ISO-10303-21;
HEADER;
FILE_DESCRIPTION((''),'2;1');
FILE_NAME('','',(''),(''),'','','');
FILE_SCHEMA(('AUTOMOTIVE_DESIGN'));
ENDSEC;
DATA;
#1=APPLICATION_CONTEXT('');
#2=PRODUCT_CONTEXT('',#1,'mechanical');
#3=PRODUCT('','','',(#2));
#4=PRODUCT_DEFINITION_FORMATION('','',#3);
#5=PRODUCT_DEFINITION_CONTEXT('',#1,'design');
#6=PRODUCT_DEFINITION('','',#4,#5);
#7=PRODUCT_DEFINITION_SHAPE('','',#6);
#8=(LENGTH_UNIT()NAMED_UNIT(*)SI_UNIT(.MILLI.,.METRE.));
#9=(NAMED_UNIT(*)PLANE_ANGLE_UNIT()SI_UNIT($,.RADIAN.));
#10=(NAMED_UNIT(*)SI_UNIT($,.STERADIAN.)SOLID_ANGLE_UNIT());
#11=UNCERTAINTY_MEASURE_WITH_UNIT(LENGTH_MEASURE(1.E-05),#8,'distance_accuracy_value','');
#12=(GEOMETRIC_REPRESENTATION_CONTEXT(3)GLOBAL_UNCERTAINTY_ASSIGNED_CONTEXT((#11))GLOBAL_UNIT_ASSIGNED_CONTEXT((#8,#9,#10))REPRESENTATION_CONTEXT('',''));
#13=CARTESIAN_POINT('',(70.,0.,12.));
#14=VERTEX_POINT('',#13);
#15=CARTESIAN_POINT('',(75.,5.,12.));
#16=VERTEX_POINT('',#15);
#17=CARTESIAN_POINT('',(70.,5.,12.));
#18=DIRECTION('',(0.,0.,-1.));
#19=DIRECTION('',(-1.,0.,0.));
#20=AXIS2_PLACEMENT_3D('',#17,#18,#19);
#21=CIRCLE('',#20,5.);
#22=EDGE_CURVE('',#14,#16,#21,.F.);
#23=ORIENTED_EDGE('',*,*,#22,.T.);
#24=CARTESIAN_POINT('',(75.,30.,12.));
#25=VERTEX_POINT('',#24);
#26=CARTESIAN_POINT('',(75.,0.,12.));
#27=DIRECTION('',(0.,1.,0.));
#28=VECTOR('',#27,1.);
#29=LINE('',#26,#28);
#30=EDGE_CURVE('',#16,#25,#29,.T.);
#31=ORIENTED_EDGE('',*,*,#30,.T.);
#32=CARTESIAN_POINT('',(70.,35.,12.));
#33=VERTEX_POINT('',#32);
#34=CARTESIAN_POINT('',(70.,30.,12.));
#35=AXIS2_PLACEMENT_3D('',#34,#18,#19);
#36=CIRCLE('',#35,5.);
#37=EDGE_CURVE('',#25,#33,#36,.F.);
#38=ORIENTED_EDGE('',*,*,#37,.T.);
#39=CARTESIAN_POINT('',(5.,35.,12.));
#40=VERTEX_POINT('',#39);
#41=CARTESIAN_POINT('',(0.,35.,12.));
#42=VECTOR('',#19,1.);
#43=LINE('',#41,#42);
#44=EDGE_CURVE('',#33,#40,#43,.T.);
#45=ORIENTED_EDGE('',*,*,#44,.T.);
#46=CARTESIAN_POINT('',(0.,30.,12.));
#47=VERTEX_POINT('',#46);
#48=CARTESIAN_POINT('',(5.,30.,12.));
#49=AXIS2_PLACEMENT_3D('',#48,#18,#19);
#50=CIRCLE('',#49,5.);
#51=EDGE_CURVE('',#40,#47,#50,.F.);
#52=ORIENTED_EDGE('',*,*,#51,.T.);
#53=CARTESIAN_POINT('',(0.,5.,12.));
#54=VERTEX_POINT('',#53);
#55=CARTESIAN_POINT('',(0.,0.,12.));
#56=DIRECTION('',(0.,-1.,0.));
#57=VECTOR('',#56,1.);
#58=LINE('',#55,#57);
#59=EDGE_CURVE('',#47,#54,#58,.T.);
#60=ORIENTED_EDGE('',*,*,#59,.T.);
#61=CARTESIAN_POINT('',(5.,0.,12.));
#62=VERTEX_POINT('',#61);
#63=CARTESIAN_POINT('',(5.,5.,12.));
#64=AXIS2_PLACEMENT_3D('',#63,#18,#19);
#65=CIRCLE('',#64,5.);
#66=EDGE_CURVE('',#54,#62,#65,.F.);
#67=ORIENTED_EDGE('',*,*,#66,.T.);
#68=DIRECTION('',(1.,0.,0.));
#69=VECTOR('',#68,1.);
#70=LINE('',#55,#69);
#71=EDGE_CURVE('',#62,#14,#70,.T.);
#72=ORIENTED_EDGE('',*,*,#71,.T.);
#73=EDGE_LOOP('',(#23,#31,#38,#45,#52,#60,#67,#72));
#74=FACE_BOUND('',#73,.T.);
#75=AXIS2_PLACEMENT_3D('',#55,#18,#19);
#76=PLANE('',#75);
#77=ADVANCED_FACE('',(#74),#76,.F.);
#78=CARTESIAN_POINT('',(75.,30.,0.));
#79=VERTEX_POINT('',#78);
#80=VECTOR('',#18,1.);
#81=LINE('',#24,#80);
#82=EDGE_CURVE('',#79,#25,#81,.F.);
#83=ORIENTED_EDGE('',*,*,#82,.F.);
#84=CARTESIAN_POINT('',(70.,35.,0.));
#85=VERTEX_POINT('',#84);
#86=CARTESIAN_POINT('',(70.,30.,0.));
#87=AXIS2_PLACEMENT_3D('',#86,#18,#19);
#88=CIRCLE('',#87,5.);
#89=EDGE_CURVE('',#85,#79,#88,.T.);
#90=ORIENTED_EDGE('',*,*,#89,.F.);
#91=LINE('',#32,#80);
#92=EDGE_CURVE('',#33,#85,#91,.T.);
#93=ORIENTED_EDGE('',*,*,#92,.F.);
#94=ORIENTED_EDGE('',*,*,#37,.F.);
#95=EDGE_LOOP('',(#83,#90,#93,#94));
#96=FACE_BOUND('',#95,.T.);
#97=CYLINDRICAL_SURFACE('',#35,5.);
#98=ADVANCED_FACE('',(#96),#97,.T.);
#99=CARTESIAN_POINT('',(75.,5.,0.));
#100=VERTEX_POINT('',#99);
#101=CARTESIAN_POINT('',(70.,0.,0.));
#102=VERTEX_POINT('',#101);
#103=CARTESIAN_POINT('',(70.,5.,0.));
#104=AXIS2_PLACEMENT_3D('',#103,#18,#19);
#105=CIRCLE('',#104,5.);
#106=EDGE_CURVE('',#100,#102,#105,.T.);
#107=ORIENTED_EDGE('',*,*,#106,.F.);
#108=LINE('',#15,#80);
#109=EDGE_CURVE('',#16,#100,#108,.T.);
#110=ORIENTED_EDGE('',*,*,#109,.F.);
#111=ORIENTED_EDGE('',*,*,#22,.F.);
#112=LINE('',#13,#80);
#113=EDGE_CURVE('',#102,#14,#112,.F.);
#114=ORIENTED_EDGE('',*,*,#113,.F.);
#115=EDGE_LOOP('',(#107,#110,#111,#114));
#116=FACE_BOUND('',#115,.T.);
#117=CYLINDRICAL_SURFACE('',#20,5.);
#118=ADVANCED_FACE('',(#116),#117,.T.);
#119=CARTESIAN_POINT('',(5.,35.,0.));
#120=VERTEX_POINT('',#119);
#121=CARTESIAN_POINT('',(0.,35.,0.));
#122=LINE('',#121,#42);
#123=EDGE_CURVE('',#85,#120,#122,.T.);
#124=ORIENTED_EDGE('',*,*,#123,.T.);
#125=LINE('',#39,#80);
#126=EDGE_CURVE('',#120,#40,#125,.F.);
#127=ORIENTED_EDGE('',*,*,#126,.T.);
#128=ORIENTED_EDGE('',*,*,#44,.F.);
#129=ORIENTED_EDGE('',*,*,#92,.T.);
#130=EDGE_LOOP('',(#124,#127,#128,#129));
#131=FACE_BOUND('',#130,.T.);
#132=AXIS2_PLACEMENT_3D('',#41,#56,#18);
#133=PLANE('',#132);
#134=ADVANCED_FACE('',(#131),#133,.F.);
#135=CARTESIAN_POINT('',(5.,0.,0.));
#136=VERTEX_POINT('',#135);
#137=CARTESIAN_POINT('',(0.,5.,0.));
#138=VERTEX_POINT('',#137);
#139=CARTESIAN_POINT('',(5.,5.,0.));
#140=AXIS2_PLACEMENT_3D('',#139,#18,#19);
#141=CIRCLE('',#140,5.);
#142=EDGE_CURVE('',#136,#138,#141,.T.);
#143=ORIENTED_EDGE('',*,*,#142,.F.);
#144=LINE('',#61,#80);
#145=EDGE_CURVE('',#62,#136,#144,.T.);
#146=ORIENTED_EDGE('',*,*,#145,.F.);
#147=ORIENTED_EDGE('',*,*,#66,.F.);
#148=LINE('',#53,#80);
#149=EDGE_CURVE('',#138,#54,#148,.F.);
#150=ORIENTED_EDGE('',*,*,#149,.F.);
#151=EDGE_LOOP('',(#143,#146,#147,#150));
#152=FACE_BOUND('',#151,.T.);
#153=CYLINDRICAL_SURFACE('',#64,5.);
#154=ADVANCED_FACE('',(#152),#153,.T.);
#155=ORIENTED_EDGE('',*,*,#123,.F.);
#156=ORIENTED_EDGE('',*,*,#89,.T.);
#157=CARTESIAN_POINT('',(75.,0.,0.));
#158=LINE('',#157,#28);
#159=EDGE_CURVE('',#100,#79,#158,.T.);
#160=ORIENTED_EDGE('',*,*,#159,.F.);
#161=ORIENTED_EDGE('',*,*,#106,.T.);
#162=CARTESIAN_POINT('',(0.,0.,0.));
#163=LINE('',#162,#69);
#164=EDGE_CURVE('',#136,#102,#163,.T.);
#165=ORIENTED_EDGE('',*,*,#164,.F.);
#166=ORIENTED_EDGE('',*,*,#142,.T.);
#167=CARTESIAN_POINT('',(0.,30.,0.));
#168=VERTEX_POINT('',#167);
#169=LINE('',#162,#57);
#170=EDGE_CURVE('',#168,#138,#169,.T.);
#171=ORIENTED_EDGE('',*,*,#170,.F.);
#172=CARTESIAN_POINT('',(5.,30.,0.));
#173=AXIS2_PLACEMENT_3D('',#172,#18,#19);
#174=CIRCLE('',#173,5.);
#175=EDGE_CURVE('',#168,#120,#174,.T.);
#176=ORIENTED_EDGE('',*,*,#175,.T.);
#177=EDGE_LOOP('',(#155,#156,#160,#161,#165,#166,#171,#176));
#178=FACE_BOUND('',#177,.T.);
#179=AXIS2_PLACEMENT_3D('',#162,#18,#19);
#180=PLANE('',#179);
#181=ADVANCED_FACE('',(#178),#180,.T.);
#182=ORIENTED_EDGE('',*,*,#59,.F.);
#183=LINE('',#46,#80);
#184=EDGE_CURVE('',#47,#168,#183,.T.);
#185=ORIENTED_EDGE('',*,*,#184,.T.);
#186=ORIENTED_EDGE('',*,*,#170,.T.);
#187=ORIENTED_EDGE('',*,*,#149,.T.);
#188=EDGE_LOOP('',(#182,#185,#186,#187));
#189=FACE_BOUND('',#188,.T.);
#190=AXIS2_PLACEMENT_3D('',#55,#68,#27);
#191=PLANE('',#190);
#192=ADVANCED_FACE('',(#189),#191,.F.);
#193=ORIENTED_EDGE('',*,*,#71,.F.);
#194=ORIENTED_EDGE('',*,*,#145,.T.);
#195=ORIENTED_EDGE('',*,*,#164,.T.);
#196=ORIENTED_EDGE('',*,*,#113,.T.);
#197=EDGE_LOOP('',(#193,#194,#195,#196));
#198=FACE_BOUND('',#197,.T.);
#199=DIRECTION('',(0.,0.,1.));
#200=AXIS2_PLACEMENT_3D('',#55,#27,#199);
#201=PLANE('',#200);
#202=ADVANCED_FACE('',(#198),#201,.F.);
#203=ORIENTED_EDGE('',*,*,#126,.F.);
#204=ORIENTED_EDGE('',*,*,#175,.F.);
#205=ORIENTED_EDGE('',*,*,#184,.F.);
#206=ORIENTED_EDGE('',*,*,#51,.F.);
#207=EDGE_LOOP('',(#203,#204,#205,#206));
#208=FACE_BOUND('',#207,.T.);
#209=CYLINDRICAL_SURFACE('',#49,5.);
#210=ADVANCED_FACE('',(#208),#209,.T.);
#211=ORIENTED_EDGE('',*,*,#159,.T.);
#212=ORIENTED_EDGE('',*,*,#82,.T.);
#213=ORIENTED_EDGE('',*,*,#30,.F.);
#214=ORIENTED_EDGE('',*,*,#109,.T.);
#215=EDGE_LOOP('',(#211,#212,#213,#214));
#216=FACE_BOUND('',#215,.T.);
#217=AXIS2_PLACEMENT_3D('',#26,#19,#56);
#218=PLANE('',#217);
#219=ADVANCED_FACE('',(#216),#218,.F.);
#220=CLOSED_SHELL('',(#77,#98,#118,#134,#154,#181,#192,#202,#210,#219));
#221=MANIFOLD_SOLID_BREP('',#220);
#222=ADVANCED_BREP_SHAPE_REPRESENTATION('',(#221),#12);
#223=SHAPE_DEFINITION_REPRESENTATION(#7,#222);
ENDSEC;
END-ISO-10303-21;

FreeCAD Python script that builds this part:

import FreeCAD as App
import Part
import Sketcher

V = App.Vector


def edges_at(feature, points):
    """Names of the edges that pass closest to the given points."""
    edges = feature.Shape.Edges
    near = lambda p: min(range(len(edges)), key=lambda i: edges[i].distToShape(Part.Vertex(*p))[0])
    return sorted({f"Edge{near(p) + 1}" for p in points})


def add_polygon(sketch, points):
    """Adds a closed chain of lines whose ends are joined by coincident constraints."""
    first, n = sketch.GeometryCount, len(points)
    for a, b in zip(points, points[1:] + points[:1]):
        sketch.addGeometry(Part.LineSegment(App.Vector(*a, 0), App.Vector(*b, 0)), False)
    for i in range(n):
        sketch.addConstraint(Sketcher.Constraint("Coincident", first + i, 2, first + (i + 1) % n, 1))

doc = App.newDocument("Part")
params = doc.addObject("Spreadsheet::Sheet", "Params")
for row, (alias, value) in enumerate([
    ("sketch1_width", "75 mm"),
    ("sketch1_height", "35 mm"),
    ("pad1_length", "12 mm"),
    ("fillet_radius", "5 mm"),
], start=1):
    params.set(f"A{row}", alias)
    params.set(f"B{row}", "=" + value)
    params.setAlias(f"B{row}", alias)

body = doc.addObject("PartDesign::Body", "Body")

# Sketch on XY plane
sketch1 = doc.addObject("Sketcher::SketchObject", "Sketch")
body.addObject(sketch1)
sketch1.AttachmentSupport = (doc.XY_Plane, [""])
sketch1.MapMode = "FlatFace"
add_polygon(sketch1, [(0, 35), (0, 0), (75, 0), (75, 35)])  # lines 0-3
sketch1.addConstraint([
    Sketcher.Constraint("Vertical", 0),
    Sketcher.Constraint("Horizontal", 1),
    Sketcher.Constraint("Vertical", 2),
    Sketcher.Constraint("Horizontal", 3),
    Sketcher.Constraint("Coincident", 0, 2, -1, 1),
    Sketcher.Constraint("DistanceX", 1, 1, 1, 2, 75.0),
    Sketcher.Constraint("DistanceY", 0, 2, 0, 1, 35.0),
])
sketch1.setExpression("Constraints[9]", "Params.sketch1_width")
sketch1.setExpression("Constraints[10]", "Params.sketch1_height")
pad1 = doc.addObject("PartDesign::Pad", "Pad")
body.addObject(pad1)
pad1.Profile = sketch1
pad1.setExpression("Length", "Params.pad1_length")
doc.recompute()

fillet = doc.addObject("PartDesign::Fillet", "Fillet")
body.addObject(fillet)
fillet.Base = (pad1, edges_at(pad1, [
    (0, 35, 6),
    (75, 35, 6),
    (75, 0, 6),
    (0, 0, 6),
]))
fillet.setExpression("Radius", "Params.fillet_radius")

doc.recompute()
